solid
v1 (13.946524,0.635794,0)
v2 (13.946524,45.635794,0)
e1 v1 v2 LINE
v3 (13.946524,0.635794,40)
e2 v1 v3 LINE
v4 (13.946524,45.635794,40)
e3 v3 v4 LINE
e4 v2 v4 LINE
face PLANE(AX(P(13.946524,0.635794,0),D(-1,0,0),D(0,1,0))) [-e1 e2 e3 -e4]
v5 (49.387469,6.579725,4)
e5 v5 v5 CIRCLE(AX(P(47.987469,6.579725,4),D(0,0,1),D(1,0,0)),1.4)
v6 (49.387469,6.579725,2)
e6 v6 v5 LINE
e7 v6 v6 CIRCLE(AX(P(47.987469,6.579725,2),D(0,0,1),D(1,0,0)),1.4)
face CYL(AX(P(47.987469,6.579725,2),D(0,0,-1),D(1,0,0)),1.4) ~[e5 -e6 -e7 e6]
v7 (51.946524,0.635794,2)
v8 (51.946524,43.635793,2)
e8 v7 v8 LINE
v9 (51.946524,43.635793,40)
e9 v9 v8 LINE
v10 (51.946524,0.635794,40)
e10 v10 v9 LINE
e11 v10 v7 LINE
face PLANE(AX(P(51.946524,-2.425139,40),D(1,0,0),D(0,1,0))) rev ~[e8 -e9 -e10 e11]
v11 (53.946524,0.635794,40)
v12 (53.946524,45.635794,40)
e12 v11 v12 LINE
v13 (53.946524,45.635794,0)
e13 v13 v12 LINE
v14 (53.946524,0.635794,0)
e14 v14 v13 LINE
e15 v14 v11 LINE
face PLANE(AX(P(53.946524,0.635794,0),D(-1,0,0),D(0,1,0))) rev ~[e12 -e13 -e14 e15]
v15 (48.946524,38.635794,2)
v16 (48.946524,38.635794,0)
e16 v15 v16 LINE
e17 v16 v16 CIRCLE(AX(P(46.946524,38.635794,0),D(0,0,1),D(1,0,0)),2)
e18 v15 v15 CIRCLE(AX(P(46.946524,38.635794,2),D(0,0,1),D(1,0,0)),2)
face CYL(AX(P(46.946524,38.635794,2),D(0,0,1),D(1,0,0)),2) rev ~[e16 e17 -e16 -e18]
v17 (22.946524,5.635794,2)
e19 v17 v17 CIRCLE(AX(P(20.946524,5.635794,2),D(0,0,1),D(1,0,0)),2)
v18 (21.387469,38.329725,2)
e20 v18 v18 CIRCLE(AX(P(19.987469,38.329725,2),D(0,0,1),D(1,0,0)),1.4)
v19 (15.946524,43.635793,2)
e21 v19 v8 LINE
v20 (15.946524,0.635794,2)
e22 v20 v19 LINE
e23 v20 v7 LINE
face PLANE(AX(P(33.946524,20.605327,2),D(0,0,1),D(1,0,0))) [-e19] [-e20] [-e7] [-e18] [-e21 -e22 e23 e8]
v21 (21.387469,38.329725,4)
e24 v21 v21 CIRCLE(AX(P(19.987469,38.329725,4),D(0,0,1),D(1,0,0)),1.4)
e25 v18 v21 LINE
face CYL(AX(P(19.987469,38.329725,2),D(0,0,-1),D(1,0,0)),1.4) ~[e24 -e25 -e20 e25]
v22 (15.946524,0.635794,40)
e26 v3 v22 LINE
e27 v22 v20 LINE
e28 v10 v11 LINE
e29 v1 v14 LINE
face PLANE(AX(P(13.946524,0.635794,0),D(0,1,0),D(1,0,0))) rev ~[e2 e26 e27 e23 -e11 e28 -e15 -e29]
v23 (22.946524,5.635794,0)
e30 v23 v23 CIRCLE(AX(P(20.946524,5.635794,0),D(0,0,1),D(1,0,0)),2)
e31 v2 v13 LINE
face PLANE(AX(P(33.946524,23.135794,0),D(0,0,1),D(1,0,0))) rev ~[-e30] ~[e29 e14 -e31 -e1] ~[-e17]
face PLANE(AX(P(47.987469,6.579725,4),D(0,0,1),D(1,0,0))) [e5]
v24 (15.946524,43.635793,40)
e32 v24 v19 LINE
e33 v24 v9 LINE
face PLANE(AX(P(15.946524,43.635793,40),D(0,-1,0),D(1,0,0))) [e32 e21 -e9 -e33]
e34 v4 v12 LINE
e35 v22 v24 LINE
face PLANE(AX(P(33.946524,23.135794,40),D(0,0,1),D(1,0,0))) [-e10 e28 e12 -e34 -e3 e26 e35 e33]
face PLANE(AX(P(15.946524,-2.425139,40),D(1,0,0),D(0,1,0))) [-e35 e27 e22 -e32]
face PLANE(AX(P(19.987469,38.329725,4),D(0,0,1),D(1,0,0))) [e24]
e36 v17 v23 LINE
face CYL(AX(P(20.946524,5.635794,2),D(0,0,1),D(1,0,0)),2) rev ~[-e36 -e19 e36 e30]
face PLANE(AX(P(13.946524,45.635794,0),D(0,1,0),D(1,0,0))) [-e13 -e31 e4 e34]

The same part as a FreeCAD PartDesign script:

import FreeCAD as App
import Part
import Sketcher
from FreeCAD import Vector


def add_polygon(sketch, points):
    """Adds a closed chain of lines whose ends are joined by coincident constraints."""
    first, n = sketch.GeometryCount, len(points)
    for a, b in zip(points, points[1:] + points[:1]):
        sketch.addGeometry(Part.LineSegment(App.Vector(*a, 0), App.Vector(*b, 0)), False)
    for i in range(n):
        sketch.addConstraint(Sketcher.Constraint("Coincident", first + i, 2, first + (i + 1) % n, 1))

doc = App.newDocument("Part")
body = doc.addObject("PartDesign::Body", "Body")

sketch1 = body.newObject("Sketcher::SketchObject", "Sketch")
sketch1.AttachmentSupport = (doc.getObject("XY_Plane"), [""])
sketch1.MapMode = "FlatFace"
add_polygon(sketch1, [(14, 46), (14, 1), (54, 1), (54, 46)])
sketch1.addConstraint(Sketcher.Constraint("Vertical", 0))
sketch1.addConstraint(Sketcher.Constraint("Horizontal", 1))
sketch1.addConstraint(Sketcher.Constraint("Vertical", 2))
sketch1.addConstraint(Sketcher.Constraint("Horizontal", 3))
sketch1.addConstraint(Sketcher.Constraint("DistanceX", 1, 1, 1, 2, 40.0))
sketch1.addConstraint(Sketcher.Constraint("DistanceY", 0, 2, 0, 1, 45.0))
sketch1.addConstraint(Sketcher.Constraint("DistanceX", -1, 1, 0, 2, 13.946524))
sketch1.addConstraint(Sketcher.Constraint("DistanceY", -1, 1, 0, 2, 0.635794))
pad1 = body.newObject("PartDesign::Pad", "Pad")
pad1.Profile = sketch1
pad1.Length = 40

sketch2 = body.newObject("Sketcher::SketchObject", "Sketch001")
sketch2.AttachmentSupport = (doc.getObject("XY_Plane"), [""])
sketch2.MapMode = "FlatFace"
sketch2.AttachmentOffset = App.Placement(Vector(0, 0, 40), App.Rotation())
add_polygon(sketch2, [(16, 44), (16, -2), (52, -2), (52, 44)])
sketch2.addConstraint(Sketcher.Constraint("Vertical", 0))
sketch2.addConstraint(Sketcher.Constraint("Horizontal", 1))
sketch2.addConstraint(Sketcher.Constraint("Vertical", 2))
sketch2.addConstraint(Sketcher.Constraint("Horizontal", 3))
sketch2.addConstraint(Sketcher.Constraint("DistanceX", 1, 1, 1, 2, 36.0))
sketch2.addConstraint(Sketcher.Constraint("DistanceY", 0, 2, 0, 1, 46.060933))
sketch2.addConstraint(Sketcher.Constraint("DistanceY", 0, 2, -1, 1, 2.425139))
sketch2.addConstraint(Sketcher.Constraint("DistanceX", -1, 1, 0, 2, 15.946524))
pocket1 = body.newObject("PartDesign::Pocket", "Pocket")
pocket1.Profile = sketch2
pocket1.Length = 38

sketch3 = body.newObject("Sketcher::SketchObject", "Sketch002")
sketch3.AttachmentSupport = (doc.getObject("XY_Plane"), [""])
sketch3.MapMode = "FlatFace"
sketch3.AttachmentOffset = App.Placement(Vector(0, 0, 2), App.Rotation())
sketch3.addGeometry(Part.Circle(Vector(20, 38.3, 0), Vector(0, 0, 1), 1.4), False)
sketch3.addGeometry(Part.Circle(Vector(48, 6.6, 0), Vector(0, 0, 1), 1.4), False)
sketch3.addConstraint(Sketcher.Constraint("Equal", 0, 1))
sketch3.addConstraint(Sketcher.Constraint("Diameter", 0, 2.8))
sketch3.addConstraint(Sketcher.Constraint("DistanceX", 0, 3, 1, 3, 28.0))
sketch3.addConstraint(Sketcher.Constraint("DistanceY", 1, 3, 0, 3, 31.75))
sketch3.addConstraint(Sketcher.Constraint("DistanceX", -1, 1, 0, 3, 19.987469))
sketch3.addConstraint(Sketcher.Constraint("DistanceY", -1, 1, 0, 3, 38.329725))
pad2 = body.newObject("PartDesign::Pad", "Pad001")
pad2.Profile = sketch3
pad2.Length = 2

sketch4 = body.newObject("Sketcher::SketchObject", "Sketch003")
sketch4.AttachmentSupport = (doc.getObject("XY_Plane"), [""])
sketch4.MapMode = "FlatFace"
sketch4.AttachmentOffset = App.Placement(Vector(0, 0, 2), App.Rotation())
sketch4.addGeometry(Part.Circle(Vector(46.9, 38.6, 0), Vector(0, 0, 1), 2), False)
sketch4.addGeometry(Part.Circle(Vector(20.9, 5.6, 0), Vector(0, 0, 1), 2), False)
sketch4.addConstraint(Sketcher.Constraint("Equal", 0, 1))
sketch4.addConstraint(Sketcher.Constraint("Diameter", 0, 4.0))
sketch4.addConstraint(Sketcher.Constraint("DistanceX", 1, 3, 0, 3, 26.0))
sketch4.addConstraint(Sketcher.Constraint("DistanceY", 1, 3, 0, 3, 33.0))
sketch4.addConstraint(Sketcher.Constraint("DistanceX", -1, 1, 0, 3, 46.946524))
sketch4.addConstraint(Sketcher.Constraint("DistanceY", -1, 1, 0, 3, 38.635794))
pocket2 = body.newObject("PartDesign::Pocket", "Pocket001")
pocket2.Profile = sketch4
pocket2.Length = 5

doc.recompute()
